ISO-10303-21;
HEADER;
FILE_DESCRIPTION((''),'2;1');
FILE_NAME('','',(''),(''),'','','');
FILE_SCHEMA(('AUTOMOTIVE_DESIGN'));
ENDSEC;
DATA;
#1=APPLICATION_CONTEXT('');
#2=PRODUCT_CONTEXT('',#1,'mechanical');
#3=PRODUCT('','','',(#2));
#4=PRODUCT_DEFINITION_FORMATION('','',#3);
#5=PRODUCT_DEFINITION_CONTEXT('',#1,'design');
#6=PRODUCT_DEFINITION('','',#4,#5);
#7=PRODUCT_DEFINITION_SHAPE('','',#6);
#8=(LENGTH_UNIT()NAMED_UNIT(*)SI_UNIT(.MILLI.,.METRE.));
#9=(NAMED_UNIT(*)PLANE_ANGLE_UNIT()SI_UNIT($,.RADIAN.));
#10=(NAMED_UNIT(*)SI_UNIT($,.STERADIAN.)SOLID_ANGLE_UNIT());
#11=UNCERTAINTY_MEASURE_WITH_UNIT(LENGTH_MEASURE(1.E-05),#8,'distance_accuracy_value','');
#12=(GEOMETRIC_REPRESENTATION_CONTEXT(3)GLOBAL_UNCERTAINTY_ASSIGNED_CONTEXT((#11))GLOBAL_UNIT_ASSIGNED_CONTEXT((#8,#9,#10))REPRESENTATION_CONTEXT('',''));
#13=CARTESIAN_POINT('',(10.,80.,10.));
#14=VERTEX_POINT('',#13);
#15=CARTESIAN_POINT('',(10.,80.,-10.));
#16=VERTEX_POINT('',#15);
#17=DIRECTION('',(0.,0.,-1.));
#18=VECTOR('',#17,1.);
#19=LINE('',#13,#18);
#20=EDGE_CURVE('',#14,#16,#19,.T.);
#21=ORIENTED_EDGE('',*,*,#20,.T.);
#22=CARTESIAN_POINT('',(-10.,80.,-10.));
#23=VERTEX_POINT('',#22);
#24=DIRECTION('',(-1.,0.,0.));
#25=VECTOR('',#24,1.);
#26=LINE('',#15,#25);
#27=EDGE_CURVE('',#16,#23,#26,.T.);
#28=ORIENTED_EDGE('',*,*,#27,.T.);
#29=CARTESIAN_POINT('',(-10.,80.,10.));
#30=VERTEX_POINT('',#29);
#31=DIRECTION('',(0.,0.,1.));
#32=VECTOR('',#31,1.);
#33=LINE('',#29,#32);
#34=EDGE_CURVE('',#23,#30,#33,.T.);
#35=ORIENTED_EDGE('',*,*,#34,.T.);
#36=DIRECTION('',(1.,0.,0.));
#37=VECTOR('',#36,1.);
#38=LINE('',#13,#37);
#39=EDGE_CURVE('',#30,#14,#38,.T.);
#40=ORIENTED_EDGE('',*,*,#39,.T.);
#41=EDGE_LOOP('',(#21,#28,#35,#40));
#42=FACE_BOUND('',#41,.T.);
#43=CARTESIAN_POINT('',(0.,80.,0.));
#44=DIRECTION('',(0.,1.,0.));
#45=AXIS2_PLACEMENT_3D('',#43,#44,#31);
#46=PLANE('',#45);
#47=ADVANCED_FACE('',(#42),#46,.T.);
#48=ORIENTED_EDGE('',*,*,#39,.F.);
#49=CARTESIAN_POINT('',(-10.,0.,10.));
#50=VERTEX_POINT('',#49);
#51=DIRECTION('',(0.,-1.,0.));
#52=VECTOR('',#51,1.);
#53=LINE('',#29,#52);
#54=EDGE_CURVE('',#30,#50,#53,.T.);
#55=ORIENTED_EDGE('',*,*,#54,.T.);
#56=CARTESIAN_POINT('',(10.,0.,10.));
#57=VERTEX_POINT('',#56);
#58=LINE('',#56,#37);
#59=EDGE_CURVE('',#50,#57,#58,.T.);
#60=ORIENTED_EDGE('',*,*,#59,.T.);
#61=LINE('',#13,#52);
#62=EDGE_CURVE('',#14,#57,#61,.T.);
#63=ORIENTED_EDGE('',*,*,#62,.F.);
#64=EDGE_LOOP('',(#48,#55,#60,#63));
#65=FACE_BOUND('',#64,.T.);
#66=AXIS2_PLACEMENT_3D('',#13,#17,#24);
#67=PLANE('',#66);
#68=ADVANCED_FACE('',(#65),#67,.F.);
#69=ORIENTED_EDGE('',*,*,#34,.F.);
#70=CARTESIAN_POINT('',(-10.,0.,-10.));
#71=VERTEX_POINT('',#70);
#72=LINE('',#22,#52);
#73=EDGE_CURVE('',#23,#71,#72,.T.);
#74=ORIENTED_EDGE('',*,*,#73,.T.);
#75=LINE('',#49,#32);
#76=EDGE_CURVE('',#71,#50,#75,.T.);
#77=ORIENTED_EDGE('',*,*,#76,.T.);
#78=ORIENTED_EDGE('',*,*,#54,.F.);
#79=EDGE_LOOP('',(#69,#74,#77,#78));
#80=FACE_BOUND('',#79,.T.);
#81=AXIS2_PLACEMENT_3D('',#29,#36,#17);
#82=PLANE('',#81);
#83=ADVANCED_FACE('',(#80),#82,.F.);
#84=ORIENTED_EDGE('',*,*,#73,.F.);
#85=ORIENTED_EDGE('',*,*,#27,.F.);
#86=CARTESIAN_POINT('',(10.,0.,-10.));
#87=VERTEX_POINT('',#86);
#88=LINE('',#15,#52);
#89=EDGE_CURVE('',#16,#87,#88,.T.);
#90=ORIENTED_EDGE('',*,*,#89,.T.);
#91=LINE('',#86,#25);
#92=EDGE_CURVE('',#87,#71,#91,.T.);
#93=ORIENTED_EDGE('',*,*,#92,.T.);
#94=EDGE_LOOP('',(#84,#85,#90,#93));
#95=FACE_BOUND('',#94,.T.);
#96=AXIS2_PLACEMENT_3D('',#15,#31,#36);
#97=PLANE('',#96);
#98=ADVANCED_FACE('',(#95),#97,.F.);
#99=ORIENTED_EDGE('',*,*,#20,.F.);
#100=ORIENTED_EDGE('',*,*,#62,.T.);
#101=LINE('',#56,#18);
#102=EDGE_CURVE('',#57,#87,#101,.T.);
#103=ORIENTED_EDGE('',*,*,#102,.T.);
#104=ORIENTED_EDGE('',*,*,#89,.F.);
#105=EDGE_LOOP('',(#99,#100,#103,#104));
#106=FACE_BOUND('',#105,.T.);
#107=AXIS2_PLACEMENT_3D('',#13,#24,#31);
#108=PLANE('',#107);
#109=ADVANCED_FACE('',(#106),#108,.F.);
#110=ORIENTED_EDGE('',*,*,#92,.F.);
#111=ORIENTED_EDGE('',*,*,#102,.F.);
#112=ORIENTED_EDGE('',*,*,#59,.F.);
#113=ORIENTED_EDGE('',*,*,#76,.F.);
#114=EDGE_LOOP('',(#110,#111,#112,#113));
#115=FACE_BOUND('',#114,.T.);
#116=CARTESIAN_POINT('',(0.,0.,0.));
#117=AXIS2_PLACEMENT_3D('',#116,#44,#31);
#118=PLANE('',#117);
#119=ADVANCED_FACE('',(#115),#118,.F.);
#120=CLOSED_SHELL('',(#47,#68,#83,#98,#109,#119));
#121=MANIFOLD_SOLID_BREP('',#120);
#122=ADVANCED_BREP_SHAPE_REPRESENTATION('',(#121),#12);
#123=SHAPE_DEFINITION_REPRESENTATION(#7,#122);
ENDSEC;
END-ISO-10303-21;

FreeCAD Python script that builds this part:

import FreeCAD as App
import Part
import Sketcher

V = App.Vector
Q = App.Units.Quantity


def add_polygon(sketch, points):
    """Adds a closed chain of lines whose ends are joined by coincident constraints."""
    first, n = sketch.GeometryCount, len(points)
    for a, b in zip(points, points[1:] + points[:1]):
        sketch.addGeometry(Part.LineSegment(App.Vector(*a, 0), App.Vector(*b, 0)), False)
    for i in range(n):
        sketch.addConstraint(Sketcher.Constraint("Coincident", first + i, 2, first + (i + 1) % n, 1))

doc = App.newDocument("Part")
body = doc.addObject("PartDesign::Body", "Body")

sketch1 = doc.addObject("Sketcher::SketchObject", "Sketch")
body.addObject(sketch1)
sketch1.AttachmentSupport = (doc.XZ_Plane, [""])
sketch1.MapMode = "FlatFace"
add_polygon(sketch1, [(-10, -10), (-10, 10), (10, 10), (10, -10)])
sketch1.addConstraint([
    Sketcher.Constraint("Vertical", 0),
    Sketcher.Constraint("Horizontal", 1),
    Sketcher.Constraint("Vertical", 2),
    Sketcher.Constraint("Horizontal", 3),
    Sketcher.Constraint("Symmetric", 0, 2, 2, 2, -1, 1),
    Sketcher.Constraint("Equal", 3, 0),
    Sketcher.Constraint("DistanceX", 1, 1, 1, 2, Q("20 mm")),
])
pad1 = doc.addObject("PartDesign::Pad", "Pad")
body.addObject(pad1)
pad1.Profile = sketch1
pad1.Length = 80
pad1.Reversed = True

doc.recompute()
